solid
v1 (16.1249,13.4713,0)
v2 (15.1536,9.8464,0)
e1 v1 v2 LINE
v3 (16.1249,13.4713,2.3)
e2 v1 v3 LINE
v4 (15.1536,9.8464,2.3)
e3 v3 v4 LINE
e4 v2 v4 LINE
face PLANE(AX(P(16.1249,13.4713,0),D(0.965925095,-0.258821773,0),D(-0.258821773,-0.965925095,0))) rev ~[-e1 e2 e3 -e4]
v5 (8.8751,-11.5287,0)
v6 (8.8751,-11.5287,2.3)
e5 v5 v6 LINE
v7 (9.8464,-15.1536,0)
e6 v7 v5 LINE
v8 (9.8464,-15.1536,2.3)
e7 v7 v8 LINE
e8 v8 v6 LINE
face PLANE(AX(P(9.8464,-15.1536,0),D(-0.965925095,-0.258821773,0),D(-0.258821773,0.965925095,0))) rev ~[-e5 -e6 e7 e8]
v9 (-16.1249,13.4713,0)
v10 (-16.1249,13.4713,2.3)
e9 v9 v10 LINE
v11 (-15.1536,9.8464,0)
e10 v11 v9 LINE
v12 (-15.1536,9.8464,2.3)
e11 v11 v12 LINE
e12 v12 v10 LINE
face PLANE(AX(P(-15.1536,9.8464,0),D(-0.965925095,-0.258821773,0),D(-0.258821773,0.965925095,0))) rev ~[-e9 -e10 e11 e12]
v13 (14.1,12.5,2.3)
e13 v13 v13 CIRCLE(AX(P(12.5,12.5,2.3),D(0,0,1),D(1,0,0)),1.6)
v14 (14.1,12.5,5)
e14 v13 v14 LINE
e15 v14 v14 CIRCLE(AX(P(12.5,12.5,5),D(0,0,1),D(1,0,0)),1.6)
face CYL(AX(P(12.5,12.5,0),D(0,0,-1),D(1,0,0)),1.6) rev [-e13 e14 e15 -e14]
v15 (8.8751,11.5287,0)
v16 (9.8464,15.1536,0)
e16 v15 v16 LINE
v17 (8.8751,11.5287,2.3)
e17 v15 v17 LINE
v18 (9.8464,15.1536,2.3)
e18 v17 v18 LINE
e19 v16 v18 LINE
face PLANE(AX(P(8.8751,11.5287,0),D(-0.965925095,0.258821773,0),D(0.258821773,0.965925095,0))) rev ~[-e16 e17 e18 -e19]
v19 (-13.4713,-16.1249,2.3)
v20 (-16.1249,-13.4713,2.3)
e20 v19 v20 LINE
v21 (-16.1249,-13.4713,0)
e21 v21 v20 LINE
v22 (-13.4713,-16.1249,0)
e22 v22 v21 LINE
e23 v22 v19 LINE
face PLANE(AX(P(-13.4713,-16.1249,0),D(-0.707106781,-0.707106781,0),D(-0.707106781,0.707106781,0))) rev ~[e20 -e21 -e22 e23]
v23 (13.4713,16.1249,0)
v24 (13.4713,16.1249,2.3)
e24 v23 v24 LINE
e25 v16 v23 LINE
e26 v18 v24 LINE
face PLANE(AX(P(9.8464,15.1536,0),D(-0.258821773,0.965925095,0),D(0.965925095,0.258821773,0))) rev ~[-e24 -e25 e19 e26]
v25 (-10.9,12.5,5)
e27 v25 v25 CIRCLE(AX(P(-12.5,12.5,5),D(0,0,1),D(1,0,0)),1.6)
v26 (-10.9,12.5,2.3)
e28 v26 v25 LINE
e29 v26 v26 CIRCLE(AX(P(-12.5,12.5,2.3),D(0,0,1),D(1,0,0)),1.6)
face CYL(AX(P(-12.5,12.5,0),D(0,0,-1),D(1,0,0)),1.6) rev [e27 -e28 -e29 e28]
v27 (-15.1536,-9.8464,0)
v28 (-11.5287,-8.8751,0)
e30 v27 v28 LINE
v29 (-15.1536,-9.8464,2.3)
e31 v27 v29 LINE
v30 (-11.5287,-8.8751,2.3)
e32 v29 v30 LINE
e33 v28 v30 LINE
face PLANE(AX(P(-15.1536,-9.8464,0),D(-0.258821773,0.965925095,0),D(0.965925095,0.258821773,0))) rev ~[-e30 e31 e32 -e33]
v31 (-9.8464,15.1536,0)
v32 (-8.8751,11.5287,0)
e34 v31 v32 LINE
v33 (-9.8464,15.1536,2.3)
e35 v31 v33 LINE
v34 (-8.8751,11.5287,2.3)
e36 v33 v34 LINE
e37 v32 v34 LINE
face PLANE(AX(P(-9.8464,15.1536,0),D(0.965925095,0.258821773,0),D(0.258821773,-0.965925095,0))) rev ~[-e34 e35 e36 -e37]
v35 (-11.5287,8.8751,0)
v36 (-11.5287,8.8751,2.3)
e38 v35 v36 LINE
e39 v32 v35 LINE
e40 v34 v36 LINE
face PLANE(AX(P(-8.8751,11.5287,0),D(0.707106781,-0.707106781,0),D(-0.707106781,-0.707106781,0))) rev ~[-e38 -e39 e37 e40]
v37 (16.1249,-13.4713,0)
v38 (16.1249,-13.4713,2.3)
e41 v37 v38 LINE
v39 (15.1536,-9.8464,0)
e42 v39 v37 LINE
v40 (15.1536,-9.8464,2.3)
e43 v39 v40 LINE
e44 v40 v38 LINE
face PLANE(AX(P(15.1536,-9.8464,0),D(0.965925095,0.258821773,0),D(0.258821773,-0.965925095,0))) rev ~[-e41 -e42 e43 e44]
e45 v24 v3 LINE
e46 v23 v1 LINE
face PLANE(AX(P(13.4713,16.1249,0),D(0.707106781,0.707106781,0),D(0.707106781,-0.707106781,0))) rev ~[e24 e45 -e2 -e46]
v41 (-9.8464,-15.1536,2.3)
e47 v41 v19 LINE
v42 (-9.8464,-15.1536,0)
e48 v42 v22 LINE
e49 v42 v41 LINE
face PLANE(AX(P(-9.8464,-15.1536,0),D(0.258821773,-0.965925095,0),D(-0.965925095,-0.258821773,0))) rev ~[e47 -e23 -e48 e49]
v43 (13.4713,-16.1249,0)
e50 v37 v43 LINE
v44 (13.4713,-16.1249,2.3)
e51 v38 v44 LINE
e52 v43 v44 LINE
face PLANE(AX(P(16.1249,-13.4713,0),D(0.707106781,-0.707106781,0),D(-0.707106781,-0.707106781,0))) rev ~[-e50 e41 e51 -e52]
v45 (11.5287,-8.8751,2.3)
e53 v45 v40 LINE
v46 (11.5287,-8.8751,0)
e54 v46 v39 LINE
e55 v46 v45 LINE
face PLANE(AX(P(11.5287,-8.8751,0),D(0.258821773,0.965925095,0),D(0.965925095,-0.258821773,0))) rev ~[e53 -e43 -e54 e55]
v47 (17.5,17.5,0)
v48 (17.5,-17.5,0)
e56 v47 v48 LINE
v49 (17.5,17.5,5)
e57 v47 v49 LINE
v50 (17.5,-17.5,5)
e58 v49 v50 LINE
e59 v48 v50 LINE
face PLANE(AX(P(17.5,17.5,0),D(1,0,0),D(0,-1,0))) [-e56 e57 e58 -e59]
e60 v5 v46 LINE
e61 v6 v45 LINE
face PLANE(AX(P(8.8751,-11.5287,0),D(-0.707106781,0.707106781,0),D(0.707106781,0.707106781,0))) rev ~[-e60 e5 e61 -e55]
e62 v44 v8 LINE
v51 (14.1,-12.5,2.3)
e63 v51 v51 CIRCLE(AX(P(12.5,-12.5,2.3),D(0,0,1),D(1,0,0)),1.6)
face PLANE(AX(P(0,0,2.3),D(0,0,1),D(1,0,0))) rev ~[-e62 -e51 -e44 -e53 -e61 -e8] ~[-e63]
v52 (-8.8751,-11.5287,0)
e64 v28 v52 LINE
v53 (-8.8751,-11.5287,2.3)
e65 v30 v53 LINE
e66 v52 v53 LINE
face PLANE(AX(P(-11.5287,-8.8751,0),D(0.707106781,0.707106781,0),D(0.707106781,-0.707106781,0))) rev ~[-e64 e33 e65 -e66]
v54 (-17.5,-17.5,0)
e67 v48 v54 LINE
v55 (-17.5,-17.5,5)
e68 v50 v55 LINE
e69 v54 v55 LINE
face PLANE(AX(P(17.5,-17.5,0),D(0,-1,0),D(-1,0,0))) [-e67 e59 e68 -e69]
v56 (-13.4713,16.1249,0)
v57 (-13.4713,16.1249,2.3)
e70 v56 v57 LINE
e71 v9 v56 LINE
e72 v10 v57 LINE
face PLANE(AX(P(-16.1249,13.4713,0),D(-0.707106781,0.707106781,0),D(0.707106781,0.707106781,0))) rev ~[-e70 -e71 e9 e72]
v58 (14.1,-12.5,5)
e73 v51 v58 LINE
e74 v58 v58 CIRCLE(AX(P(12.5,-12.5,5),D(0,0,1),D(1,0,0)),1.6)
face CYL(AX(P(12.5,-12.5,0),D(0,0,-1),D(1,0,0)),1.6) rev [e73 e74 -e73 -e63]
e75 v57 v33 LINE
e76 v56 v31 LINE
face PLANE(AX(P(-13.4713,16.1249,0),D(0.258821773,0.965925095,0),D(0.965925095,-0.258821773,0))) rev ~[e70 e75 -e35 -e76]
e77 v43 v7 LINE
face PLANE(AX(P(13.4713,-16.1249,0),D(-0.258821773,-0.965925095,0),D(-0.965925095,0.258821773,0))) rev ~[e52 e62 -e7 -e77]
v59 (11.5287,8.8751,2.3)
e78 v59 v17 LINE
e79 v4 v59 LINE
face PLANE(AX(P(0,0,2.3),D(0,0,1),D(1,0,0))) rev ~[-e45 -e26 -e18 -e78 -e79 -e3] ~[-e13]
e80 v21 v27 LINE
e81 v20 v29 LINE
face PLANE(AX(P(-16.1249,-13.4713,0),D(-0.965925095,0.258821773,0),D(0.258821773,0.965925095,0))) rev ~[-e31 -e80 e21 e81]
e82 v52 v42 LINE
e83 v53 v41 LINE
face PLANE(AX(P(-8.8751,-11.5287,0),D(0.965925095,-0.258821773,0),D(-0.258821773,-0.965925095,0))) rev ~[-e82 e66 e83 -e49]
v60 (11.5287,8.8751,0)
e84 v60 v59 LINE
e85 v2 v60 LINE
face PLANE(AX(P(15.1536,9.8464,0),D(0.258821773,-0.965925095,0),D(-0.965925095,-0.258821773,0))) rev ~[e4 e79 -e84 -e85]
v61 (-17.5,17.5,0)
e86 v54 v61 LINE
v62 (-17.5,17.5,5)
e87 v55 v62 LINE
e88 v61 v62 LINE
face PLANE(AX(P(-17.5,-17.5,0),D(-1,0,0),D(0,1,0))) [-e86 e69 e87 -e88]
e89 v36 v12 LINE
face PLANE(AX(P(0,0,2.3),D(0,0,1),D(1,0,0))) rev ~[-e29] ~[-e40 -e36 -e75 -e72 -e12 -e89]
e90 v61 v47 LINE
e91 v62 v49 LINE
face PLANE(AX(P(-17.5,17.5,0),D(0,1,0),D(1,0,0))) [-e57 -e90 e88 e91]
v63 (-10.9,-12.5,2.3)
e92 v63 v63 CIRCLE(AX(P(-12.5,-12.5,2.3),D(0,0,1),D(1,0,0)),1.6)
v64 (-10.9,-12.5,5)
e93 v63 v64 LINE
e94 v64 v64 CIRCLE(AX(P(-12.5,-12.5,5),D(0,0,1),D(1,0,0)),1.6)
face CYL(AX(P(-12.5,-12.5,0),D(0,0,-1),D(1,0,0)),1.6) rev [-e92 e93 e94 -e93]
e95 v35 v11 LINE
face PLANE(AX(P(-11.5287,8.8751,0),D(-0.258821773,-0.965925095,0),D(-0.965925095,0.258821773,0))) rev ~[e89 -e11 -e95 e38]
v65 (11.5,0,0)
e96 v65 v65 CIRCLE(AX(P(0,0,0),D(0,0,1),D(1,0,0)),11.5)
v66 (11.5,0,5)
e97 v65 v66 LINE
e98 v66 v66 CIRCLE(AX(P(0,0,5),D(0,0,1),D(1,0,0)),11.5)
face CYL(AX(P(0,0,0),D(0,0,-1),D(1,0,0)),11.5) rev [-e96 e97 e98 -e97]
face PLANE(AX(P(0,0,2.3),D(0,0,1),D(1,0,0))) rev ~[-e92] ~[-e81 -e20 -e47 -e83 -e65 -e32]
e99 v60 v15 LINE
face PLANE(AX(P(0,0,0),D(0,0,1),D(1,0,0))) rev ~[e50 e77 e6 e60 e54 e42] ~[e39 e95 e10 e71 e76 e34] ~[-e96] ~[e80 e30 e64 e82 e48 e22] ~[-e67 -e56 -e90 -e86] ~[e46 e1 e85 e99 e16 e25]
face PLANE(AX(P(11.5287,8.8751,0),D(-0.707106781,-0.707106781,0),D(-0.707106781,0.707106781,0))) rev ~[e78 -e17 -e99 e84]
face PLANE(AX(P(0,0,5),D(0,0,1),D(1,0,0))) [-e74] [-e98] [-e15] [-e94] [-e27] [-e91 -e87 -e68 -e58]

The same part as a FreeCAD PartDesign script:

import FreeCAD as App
import Part
import Sketcher

V = App.Vector
Q = App.Units.Quantity


def add_polygon(sketch, points):
    """Adds a closed chain of lines whose ends are joined by coincident constraints."""
    first, n = sketch.GeometryCount, len(points)
    for a, b in zip(points, points[1:] + points[:1]):
        sketch.addGeometry(Part.LineSegment(App.Vector(*a, 0), App.Vector(*b, 0)), False)
    for i in range(n):
        sketch.addConstraint(Sketcher.Constraint("Coincident", first + i, 2, first + (i + 1) % n, 1))

doc = App.newDocument("Part")
body = doc.addObject("PartDesign::Body", "Body")

# Sketch on XY plane
sketch1 = body.newObject("Sketcher::SketchObject", "Sketch")
sketch1.AttachmentSupport = (doc.getObject("XY_Plane"), [""])
sketch1.MapMode = "FlatFace"
add_polygon(sketch1, [(17.5, 17.5), (-17.5, 17.5), (-17.5, -17.5), (17.5, -17.5)])  # lines 0-3
sketch1.addGeometry(Part.Circle(V(0, 0, 0), V(0, 0, 1), 11.5), False)  # 4
sketch1.addGeometry(Part.Circle(V(-12.5, -12.5, 0), V(0, 0, 1), 1.6), False)  # 5
sketch1.addGeometry(Part.Circle(V(12.5, -12.5, 0), V(0, 0, 1), 1.6), False)  # 6
sketch1.addGeometry(Part.Circle(V(-12.5, 12.5, 0), V(0, 0, 1), 1.6), False)  # 7
sketch1.addGeometry(Part.Circle(V(12.5, 12.5, 0), V(0, 0, 1), 1.6), False)  # 8
sketch1.addConstraint(Sketcher.Constraint("Horizontal", 0))
sketch1.addConstraint(Sketcher.Constraint("Vertical", 1))
sketch1.addConstraint(Sketcher.Constraint("Horizontal", 2))
sketch1.addConstraint(Sketcher.Constraint("Vertical", 3))
sketch1.addConstraint(Sketcher.Constraint("Coincident", 4, 3, -1, 1))
sketch1.addConstraint(Sketcher.Constraint("Equal", 5, 6))
sketch1.addConstraint(Sketcher.Constraint("Equal", 6, 7))
sketch1.addConstraint(Sketcher.Constraint("Equal", 7, 8))
sketch1.addConstraint(Sketcher.Constraint("Symmetric", 6, 3, 7, 3, -1, 1))
sketch1.addConstraint(Sketcher.Constraint("Symmetric", 5, 3, 8, 3, -1, 1))
sketch1.addConstraint(Sketcher.Constraint("Symmetric", 0, 2, 2, 2, -1, 1))
sketch1.addConstraint(Sketcher.Constraint("Symmetric", 5, 3, 6, 3, -2))
sketch1.addConstraint(Sketcher.Constraint("Equal", 2, 1))
sketch1.addConstraint(Sketcher.Constraint("Diameter", 4, Q("23 mm")))
sketch1.addConstraint(Sketcher.Constraint("Diameter", 5, Q("3.2 mm")))
sketch1.addConstraint(Sketcher.Constraint("DistanceX", 0, 2, 0, 1, Q("35 mm")))
sketch1.addConstraint(Sketcher.Constraint("DistanceX", 5, 3, 6, 3, Q("25 mm")))
sketch1.addConstraint(Sketcher.Constraint("DistanceY", 5, 3, 7, 3, Q("25 mm")))
pad1 = body.newObject("PartDesign::Pad", "Pad")
pad1.Profile = sketch1
pad1.Length = 5

# Sketch on XY plane
sketch2 = body.newObject("Sketcher::SketchObject", "Sketch001")
sketch2.AttachmentSupport = (doc.getObject("XY_Plane"), [""])
sketch2.MapMode = "FlatFace"
add_polygon(sketch2, [(-8.9, 11.5), (-9.8, 15.2), (-13.5, 16.1), (-16.1, 13.5), (-15.2, 9.8), (-11.5, 8.9)])  # lines 0-5
sketch2.addGeometry(Part.Circle(V(-12.5, 12.5, 0), V(0, 0, 1), 1.6), False)  # 6
add_polygon(sketch2, [(11.5, 8.9), (15.2, 9.8), (16.1, 13.5), (13.5, 16.1), (9.8, 15.2), (8.9, 11.5)])  # lines 7-12
sketch2.addGeometry(Part.Circle(V(12.5, 12.5, 0), V(0, 0, 1), 1.6), False)  # 13
add_polygon(sketch2, [(16.1, -13.5), (15.2, -9.8), (11.5, -8.9), (8.9, -11.5), (9.8, -15.2), (13.5, -16.1)])  # lines 14-19
sketch2.addGeometry(Part.Circle(V(12.5, -12.5, 0), V(0, 0, 1), 1.6), False)  # 20
add_polygon(sketch2, [(-11.5, -8.9), (-15.2, -9.8), (-16.1, -13.5), (-13.5, -16.1), (-9.8, -15.2), (-8.9, -11.5)])  # lines 21-26
sketch2.addGeometry(Part.Circle(V(-12.5, -12.5, 0), V(0, 0, 1), 1.6), False)  # 27
sketch2.addConstraint(Sketcher.Constraint("Equal", 6, 13))
sketch2.addConstraint(Sketcher.Constraint("Equal", 13, 20))
sketch2.addConstraint(Sketcher.Constraint("Equal", 20, 27))
sketch2.addConstraint(Sketcher.Constraint("Symmetric", 6, 3, 20, 3, -1, 1))
sketch2.addConstraint(Sketcher.Constraint("Symmetric", 13, 3, 27, 3, -1, 1))
sketch2.addConstraint(Sketcher.Constraint("Symmetric", 3, 2, 14, 2, -1, 1))
sketch2.addConstraint(Sketcher.Constraint("Symmetric", 4, 2, 15, 2, -1, 1))
sketch2.addConstraint(Sketcher.Constraint("Symmetric", 5, 2, 16, 2, -1, 1))
sketch2.addConstraint(Sketcher.Constraint("Symmetric", 0, 2, 17, 2, -1, 1))
sketch2.addConstraint(Sketcher.Constraint("Symmetric", 1, 2, 18, 2, -1, 1))
sketch2.addConstraint(Sketcher.Constraint("Symmetric", 2, 2, 19, 2, -1, 1))
sketch2.addConstraint(Sketcher.Constraint("Symmetric", 7, 2, 21, 2, -1, 1))
sketch2.addConstraint(Sketcher.Constraint("Symmetric", 8, 2, 22, 2, -1, 1))
sketch2.addConstraint(Sketcher.Constraint("Symmetric", 9, 2, 23, 2, -1, 1))
sketch2.addConstraint(Sketcher.Constraint("Symmetric", 10, 2, 24, 2, -1, 1))
sketch2.addConstraint(Sketcher.Constraint("Symmetric", 11, 2, 25, 2, -1, 1))
sketch2.addConstraint(Sketcher.Constraint("Symmetric", 12, 2, 26, 2, -1, 1))
sketch2.addConstraint(Sketcher.Constraint("Symmetric", 6, 3, 13, 3, -2))
sketch2.addConstraint(Sketcher.Constraint("Symmetric", 3, 2, 7, 2, -2))
sketch2.addConstraint(Sketcher.Constraint("Symmetric", 2, 2, 8, 2, -2))
sketch2.addConstraint(Sketcher.Constraint("Symmetric", 1, 2, 9, 2, -2))
sketch2.addConstraint(Sketcher.Constraint("Symmetric", 0, 2, 10, 2, -2))
sketch2.addConstraint(Sketcher.Constraint("Symmetric", 5, 2, 11, 2, -2))
sketch2.addConstraint(Sketcher.Constraint("Symmetric", 4, 2, 12, 2, -2))
sketch2.addConstraint(Sketcher.Constraint("Parallel", 0, 3))
sketch2.addConstraint(Sketcher.Constraint("Parallel", 1, 4))
sketch2.addConstraint(Sketcher.Constraint("Parallel", 2, 5))
sketch2.addConstraint(Sketcher.Constraint("Perpendicular", 3, 7))
sketch2.addConstraint(Sketcher.Constraint("Perpendicular", 5, 9))
sketch2.addConstraint(Sketcher.Constraint("Equal", 0, 1))
sketch2.addConstraint(Sketcher.Constraint("Equal", 1, 2))
sketch2.addConstraint(Sketcher.Constraint("Equal", 2, 3))
sketch2.addConstraint(Sketcher.Constraint("Diameter", 6, Q("3.2 mm")))
sketch2.addConstraint(Sketcher.Constraint("DistanceX", 6, 3, 13, 3, Q("25 mm")))
sketch2.addConstraint(Sketcher.Constraint("DistanceY", 20, 3, 13, 3, Q("25 mm")))
sketch2.addConstraint(Sketcher.Constraint("DistanceX", 0, 2, 7, 2, Q("25 mm")))
sketch2.addConstraint(Sketcher.Constraint("Angle", 0, Q("105.0002 deg")))
sketch2.addConstraint(Sketcher.Constraint("DistanceY", -1, 1, 1, 2, Q("16.125 mm")))
sketch2.addConstraint(Sketcher.Constraint("DistanceX", 2, 2, -1, 1, Q("16.125 mm")))
pocket1 = body.newObject("PartDesign::Pocket", "Pocket")
pocket1.Profile = sketch2
pocket1.Length = 2.3
pocket1.Reversed = True

doc.recompute()
